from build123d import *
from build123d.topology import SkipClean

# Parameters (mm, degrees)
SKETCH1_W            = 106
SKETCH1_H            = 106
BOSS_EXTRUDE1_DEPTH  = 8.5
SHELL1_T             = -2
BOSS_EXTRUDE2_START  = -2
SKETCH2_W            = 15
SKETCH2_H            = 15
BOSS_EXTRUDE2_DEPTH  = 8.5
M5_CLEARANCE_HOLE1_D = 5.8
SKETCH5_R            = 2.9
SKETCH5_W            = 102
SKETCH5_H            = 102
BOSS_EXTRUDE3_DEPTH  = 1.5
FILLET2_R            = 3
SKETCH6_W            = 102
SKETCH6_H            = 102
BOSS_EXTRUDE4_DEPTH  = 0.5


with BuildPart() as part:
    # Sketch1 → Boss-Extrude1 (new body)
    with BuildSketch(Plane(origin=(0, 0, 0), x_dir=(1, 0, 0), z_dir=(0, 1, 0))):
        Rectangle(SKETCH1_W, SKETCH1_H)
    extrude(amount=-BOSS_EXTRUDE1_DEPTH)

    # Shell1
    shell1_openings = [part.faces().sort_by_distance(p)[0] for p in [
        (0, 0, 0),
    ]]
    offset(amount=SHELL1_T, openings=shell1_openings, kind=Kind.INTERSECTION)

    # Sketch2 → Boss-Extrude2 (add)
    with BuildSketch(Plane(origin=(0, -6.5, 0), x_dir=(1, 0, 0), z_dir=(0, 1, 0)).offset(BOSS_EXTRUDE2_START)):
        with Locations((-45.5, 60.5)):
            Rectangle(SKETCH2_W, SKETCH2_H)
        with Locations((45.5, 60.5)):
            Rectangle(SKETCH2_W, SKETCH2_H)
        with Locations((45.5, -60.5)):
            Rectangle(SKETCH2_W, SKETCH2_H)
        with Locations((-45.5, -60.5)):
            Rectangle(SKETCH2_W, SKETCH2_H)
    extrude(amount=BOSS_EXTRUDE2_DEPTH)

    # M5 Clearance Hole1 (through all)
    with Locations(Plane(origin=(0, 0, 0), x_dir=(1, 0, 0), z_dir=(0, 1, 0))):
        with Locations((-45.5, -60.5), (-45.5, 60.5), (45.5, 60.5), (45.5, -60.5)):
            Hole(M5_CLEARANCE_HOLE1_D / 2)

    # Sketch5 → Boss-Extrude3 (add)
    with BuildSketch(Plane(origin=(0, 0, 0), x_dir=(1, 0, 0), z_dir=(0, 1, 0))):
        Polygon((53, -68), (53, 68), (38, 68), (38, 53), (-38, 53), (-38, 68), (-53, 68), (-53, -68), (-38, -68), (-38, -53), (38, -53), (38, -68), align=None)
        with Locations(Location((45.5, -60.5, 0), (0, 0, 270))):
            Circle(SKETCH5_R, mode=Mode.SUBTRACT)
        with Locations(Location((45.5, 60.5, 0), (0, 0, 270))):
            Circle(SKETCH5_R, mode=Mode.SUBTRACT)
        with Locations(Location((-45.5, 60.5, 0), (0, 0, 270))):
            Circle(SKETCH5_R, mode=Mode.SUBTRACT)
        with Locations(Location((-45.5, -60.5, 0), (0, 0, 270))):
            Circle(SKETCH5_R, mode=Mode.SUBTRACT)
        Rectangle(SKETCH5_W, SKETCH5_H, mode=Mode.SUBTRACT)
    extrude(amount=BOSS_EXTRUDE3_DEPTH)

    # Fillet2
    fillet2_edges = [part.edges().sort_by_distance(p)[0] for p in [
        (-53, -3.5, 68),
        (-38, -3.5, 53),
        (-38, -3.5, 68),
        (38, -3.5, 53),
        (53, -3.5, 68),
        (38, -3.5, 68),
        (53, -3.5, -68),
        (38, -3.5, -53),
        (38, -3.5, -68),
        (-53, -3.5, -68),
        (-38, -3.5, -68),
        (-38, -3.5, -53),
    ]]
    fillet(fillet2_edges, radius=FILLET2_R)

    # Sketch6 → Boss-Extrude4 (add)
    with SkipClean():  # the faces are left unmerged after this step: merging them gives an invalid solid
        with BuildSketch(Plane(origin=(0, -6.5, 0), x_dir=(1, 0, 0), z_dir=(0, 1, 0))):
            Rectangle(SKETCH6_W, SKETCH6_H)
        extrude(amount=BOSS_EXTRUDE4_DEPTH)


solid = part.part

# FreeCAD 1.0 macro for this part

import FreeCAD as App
import Part
import Sketcher


def edges_at(feature, points):
    """Names of the edges that pass closest to the given points."""
    edges = feature.Shape.Edges
    near = lambda p: min(range(len(edges)), key=lambda i: edges[i].distToShape(Part.Vertex(*p))[0])
    return sorted({f"Edge{near(p) + 1}" for p in points})


def faces_at(feature, points):
    """Names of the faces that lie closest to the given points."""
    faces = feature.Shape.Faces
    near = lambda p: min(range(len(faces)), key=lambda i: faces[i].distToShape(Part.Vertex(*p))[0])
    return sorted({f"Face{near(p) + 1}" for p in points})


def add_polygon(sketch, points):
    """Adds a closed chain of lines whose ends are joined by coincident constraints."""
    first, n = sketch.GeometryCount, len(points)
    for a, b in zip(points, points[1:] + points[:1]):
        sketch.addGeometry(Part.LineSegment(App.Vector(*a, 0), App.Vector(*b, 0)), False)
    for i in range(n):
        sketch.addConstraint(Sketcher.Constraint("Coincident", first + i, 2, first + (i + 1) % n, 1))

doc = App.newDocument("Part")
body = doc.addObject("PartDesign::Body", "Body")

sketch1 = body.newObject("Sketcher::SketchObject", "Sketch")
sketch1.AttachmentSupport = (doc.getObject("XZ_Plane"), [""])
sketch1.MapMode = "FlatFace"
add_polygon(sketch1, [(-53, -53), (-53, 53), (53, 53), (53, -53)])
sketch1.addConstraint(Sketcher.Constraint("Vertical", 0))
sketch1.addConstraint(Sketcher.Constraint("Horizontal", 1))
sketch1.addConstraint(Sketcher.Constraint("Vertical", 2))
sketch1.addConstraint(Sketcher.Constraint("Horizontal", 3))
sketch1.addConstraint(Sketcher.Constraint("Symmetric", 0, 2, 2, 2, -1, 1))
sketch1.addConstraint(Sketcher.Constraint("Equal", 3, 0))
sketch1.addConstraint(Sketcher.Constraint("DistanceX", 1, 1, 1, 2, 106.0))
pad1 = body.newObject("PartDesign::Pad", "Pad")
pad1.Profile = sketch1
pad1.Length = 8.5
doc.recompute()

thickness = body.newObject("PartDesign::Thickness", "Thickness")
thickness.Base = (pad1, faces_at(pad1, [(0, 0, 0)]))
thickness.Value = 2
thickness.Reversed = True
thickness.Join = "Intersection"

sketch2 = body.newObject("Sketcher::SketchObject", "Sketch001")
sketch2.AttachmentSupport = (doc.getObject("XZ_Plane"), [""])
sketch2.MapMode = "FlatFace"
sketch2.AttachmentOffset = App.Placement(App.Vector(0, 0, 8.5), App.Rotation())
add_polygon(sketch2, [(-53, -68), (-53, -53), (-38, -53), (-38, -68)])
add_polygon(sketch2, [(38, -68), (38, -53), (53, -53), (53, -68)])
add_polygon(sketch2, [(38, 53), (38, 68), (53, 68), (53, 53)])
add_polygon(sketch2, [(-53, 53), (-53, 68), (-38, 68), (-38, 53)])
sketch2.addConstraint(Sketcher.Constraint("Vertical", 0))
sketch2.addConstraint(Sketcher.Constraint("Horizontal", 1))
sketch2.addConstraint(Sketcher.Constraint("Vertical", 2))
sketch2.addConstraint(Sketcher.Constraint("Horizontal", 3))
sketch2.addConstraint(Sketcher.Constraint("Vertical", 4))
sketch2.addConstraint(Sketcher.Constraint("Horizontal", 5))
sketch2.addConstraint(Sketcher.Constraint("Vertical", 6))
sketch2.addConstraint(Sketcher.Constraint("Horizontal", 7))
sketch2.addConstraint(Sketcher.Constraint("Vertical", 8))
sketch2.addConstraint(Sketcher.Constraint("Horizontal", 9))
sketch2.addConstraint(Sketcher.Constraint("Vertical", 10))
sketch2.addConstraint(Sketcher.Constraint("Horizontal", 11))
sketch2.addConstraint(Sketcher.Constraint("Vertical", 12))
sketch2.addConstraint(Sketcher.Constraint("Horizontal", 13))
sketch2.addConstraint(Sketcher.Constraint("Vertical", 14))
sketch2.addConstraint(Sketcher.Constraint("Horizontal", 15))
sketch2.addConstraint(Sketcher.Constraint("Symmetric", 2, 2, 8, 2, -1, 1))
sketch2.addConstraint(Sketcher.Constraint("Symmetric", 0, 2, 10, 2, -1, 1))
sketch2.addConstraint(Sketcher.Constraint("Symmetric", 6, 2, 12, 2, -1, 1))
sketch2.addConstraint(Sketcher.Constraint("Symmetric", 4, 2, 14, 2, -1, 1))
sketch2.addConstraint(Sketcher.Constraint("Symmetric", 1, 2, 4, 2, -2))
sketch2.addConstraint(Sketcher.Constraint("Symmetric", 3, 2, 6, 2, -2))
sketch2.addConstraint(Sketcher.Constraint("Equal", 15, 0))
sketch2.addConstraint(Sketcher.Constraint("DistanceX", 1, 1, 1, 2, 15.0))
sketch2.addConstraint(Sketcher.Constraint("DistanceX", 0, 2, -1, 1, 53.0))
sketch2.addConstraint(Sketcher.Constraint("DistanceY", 0, 2, -1, 1, 53.0))
pad2 = body.newObject("PartDesign::Pad", "Pad001")
pad2.Profile = sketch2
pad2.Length = 8.5
pad2.Reversed = True

sketch3 = body.newObject("Sketcher::SketchObject", "Sketch002")
sketch3.AttachmentSupport = (doc.getObject("XZ_Plane"), [""])
sketch3.MapMode = "FlatFace"
sketch3.addGeometry(Part.Circle(App.Vector(-45.5, 60.5, 0), App.Vector(0, 0, 1), 2.9), False)
sketch3.addGeometry(Part.Circle(App.Vector(-45.5, -60.5, 0), App.Vector(0, 0, 1), 2.9), False)
sketch3.addGeometry(Part.Circle(App.Vector(45.5, -60.5, 0), App.Vector(0, 0, 1), 2.9), False)
sketch3.addGeometry(Part.Circle(App.Vector(45.5, 60.5, 0), App.Vector(0, 0, 1), 2.9), False)
sketch3.addConstraint(Sketcher.Constraint("Equal", 0, 1))
sketch3.addConstraint(Sketcher.Constraint("Equal", 1, 2))
sketch3.addConstraint(Sketcher.Constraint("Equal", 2, 3))
sketch3.addConstraint(Sketcher.Constraint("Symmetric", 0, 3, 2, 3, -1, 1))
sketch3.addConstraint(Sketcher.Constraint("Symmetric", 1, 3, 3, 3, -1, 1))
sketch3.addConstraint(Sketcher.Constraint("Symmetric", 1, 3, 2, 3, -2))
sketch3.addConstraint(Sketcher.Constraint("Diameter", 0, 5.8))
sketch3.addConstraint(Sketcher.Constraint("DistanceY", 1, 3, 0, 3, 121.0))
sketch3.addConstraint(Sketcher.Constraint("DistanceX", 1, 3, 2, 3, 91.0))
doc.recompute()
hole = body.newObject("PartDesign::Hole", "Hole")
hole.Profile = sketch3
hole.ThreadType = "None"
hole.Diameter = 5.8
hole.DepthType = "ThroughAll"
hole.Reversed = True

sketch4 = body.newObject("Sketcher::SketchObject", "Sketch003")
sketch4.AttachmentSupport = (doc.getObject("XZ_Plane"), [""])
sketch4.MapMode = "FlatFace"
add_polygon(sketch4, [(53, 68), (53, -68), (38, -68), (38, -53), (-38, -53), (-38, -68), (-53, -68), (-53, 68), (-38, 68), (-38, 53), (38, 53), (38, 68)])
sketch4.addGeometry(Part.Circle(App.Vector(-45.5, 60.5, 0), App.Vector(0, 0, 1), 2.9), False)
sketch4.addGeometry(Part.Circle(App.Vector(45.5, 60.5, 0), App.Vector(0, 0, 1), 2.9), False)
add_polygon(sketch4, [(51, 51), (-51, 51), (-51, -51), (51, -51)])
sketch4.addGeometry(Part.Circle(App.Vector(-45.5, -60.5, 0), App.Vector(0, 0, 1), 2.9), False)
sketch4.addGeometry(Part.Circle(App.Vector(45.5, -60.5, 0), App.Vector(0, 0, 1), 2.9), False)
sketch4.addConstraint(Sketcher.Constraint("Vertical", 0))
sketch4.addConstraint(Sketcher.Constraint("Horizontal", 1))
sketch4.addConstraint(Sketcher.Constraint("Vertical", 2))
sketch4.addConstraint(Sketcher.Constraint("Horizontal", 3))
sketch4.addConstraint(Sketcher.Constraint("Vertical", 4))
sketch4.addConstraint(Sketcher.Constraint("Horizontal", 5))
sketch4.addConstraint(Sketcher.Constraint("Vertical", 6))
sketch4.addConstraint(Sketcher.Constraint("Horizontal", 7))
sketch4.addConstraint(Sketcher.Constraint("Vertical", 8))
sketch4.addConstraint(Sketcher.Constraint("Horizontal", 9))
sketch4.addConstraint(Sketcher.Constraint("Vertical", 10))
sketch4.addConstraint(Sketcher.Constraint("Horizontal", 11))
sketch4.addConstraint(Sketcher.Constraint("Horizontal", 14))
sketch4.addConstraint(Sketcher.Constraint("Vertical", 15))
sketch4.addConstraint(Sketcher.Constraint("Horizontal", 16))
sketch4.addConstraint(Sketcher.Constraint("Vertical", 17))
sketch4.addConstraint(Sketcher.Constraint("Equal", 12, 13))
sketch4.addConstraint(Sketcher.Constraint("Equal", 13, 18))
sketch4.addConstraint(Sketcher.Constraint("Equal", 18, 19))
sketch4.addConstraint(Sketcher.Constraint("Symmetric", 13, 3, 18, 3, -1, 1))
sketch4.addConstraint(Sketcher.Constraint("Symmetric", 12, 3, 19, 3, -1, 1))
sketch4.addConstraint(Sketcher.Constraint("Symmetric", 0, 2, 6, 2, -1, 1))
sketch4.addConstraint(Sketcher.Constraint("Symmetric", 2, 2, 8, 2, -1, 1))
sketch4.addConstraint(Sketcher.Constraint("Symmetric", 4, 2, 10, 2, -1, 1))
sketch4.addConstraint(Sketcher.Constraint("Symmetric", 14, 2, 16, 2, -1, 1))
sketch4.addConstraint(Sketcher.Constraint("Symmetric", 12, 3, 13, 3, -2))
sketch4.addConstraint(Sketcher.Constraint("Symmetric", 1, 2, 4, 2, -2))
sketch4.addConstraint(Sketcher.Constraint("Equal", 11, 2))
sketch4.addConstraint(Sketcher.Constraint("Equal", 16, 15))
sketch4.addConstraint(Sketcher.Constraint("Diameter", 12, 5.8))
sketch4.addConstraint(Sketcher.Constraint("DistanceX", 1, 2, 1, 1, 15.0))
sketch4.addConstraint(Sketcher.Constraint("DistanceX", 3, 2, 3, 1, 76.0))
sketch4.addConstraint(Sketcher.Constraint("DistanceX", 14, 2, 14, 1, 102.0))
sketch4.addConstraint(Sketcher.Constraint("DistanceY", 0, 2, 0, 1, 136.0))
sketch4.addConstraint(Sketcher.Constraint("DistanceX", 12, 3, 13, 3, 91.0))
sketch4.addConstraint(Sketcher.Constraint("DistanceY", 18, 3, 12, 3, 121.0))
pad3 = body.newObject("PartDesign::Pad", "Pad002")
pad3.Profile = sketch4
pad3.Length = 1.5
pad3.Reversed = True
doc.recompute()

fillet = body.newObject("PartDesign::Fillet", "Fillet")
fillet.Base = (pad3, edges_at(pad3, [
    (-53, -3.5, 68),
    (-38, -3.5, 53),
    (-38, -3.5, 68),
    (38, -3.5, 53),
    (53, -3.5, 68),
    (38, -3.5, 68),
    (53, -3.5, -68),
    (38, -3.5, -53),
    (38, -3.5, -68),
    (-53, -3.5, -68),
    (-38, -3.5, -68),
    (-38, -3.5, -53),
]))
fillet.Radius = 3

sketch5 = body.newObject("Sketcher::SketchObject", "Sketch004")
sketch5.AttachmentSupport = (doc.getObject("XZ_Plane"), [""])
sketch5.MapMode = "FlatFace"
sketch5.AttachmentOffset = App.Placement(App.Vector(0, 0, 6.5), App.Rotation())
add_polygon(sketch5, [(-51, -51), (-51, 51), (51, 51), (51, -51)])
sketch5.addConstraint(Sketcher.Constraint("Vertical", 0))
sketch5.addConstraint(Sketcher.Constraint("Horizontal", 1))
sketch5.addConstraint(Sketcher.Constraint("Vertical", 2))
sketch5.addConstraint(Sketcher.Constraint("Horizontal", 3))
sketch5.addConstraint(Sketcher.Constraint("Symmetric", 0, 2, 2, 2, -1, 1))
sketch5.addConstraint(Sketcher.Constraint("Equal", 3, 0))
sketch5.addConstraint(Sketcher.Constraint("DistanceX", 1, 1, 1, 2, 102.0))
pad4 = body.newObject("PartDesign::Pad", "Pad003")
pad4.Profile = sketch5
pad4.Length = 0.5
pad4.Reversed = True

doc.recompute()
